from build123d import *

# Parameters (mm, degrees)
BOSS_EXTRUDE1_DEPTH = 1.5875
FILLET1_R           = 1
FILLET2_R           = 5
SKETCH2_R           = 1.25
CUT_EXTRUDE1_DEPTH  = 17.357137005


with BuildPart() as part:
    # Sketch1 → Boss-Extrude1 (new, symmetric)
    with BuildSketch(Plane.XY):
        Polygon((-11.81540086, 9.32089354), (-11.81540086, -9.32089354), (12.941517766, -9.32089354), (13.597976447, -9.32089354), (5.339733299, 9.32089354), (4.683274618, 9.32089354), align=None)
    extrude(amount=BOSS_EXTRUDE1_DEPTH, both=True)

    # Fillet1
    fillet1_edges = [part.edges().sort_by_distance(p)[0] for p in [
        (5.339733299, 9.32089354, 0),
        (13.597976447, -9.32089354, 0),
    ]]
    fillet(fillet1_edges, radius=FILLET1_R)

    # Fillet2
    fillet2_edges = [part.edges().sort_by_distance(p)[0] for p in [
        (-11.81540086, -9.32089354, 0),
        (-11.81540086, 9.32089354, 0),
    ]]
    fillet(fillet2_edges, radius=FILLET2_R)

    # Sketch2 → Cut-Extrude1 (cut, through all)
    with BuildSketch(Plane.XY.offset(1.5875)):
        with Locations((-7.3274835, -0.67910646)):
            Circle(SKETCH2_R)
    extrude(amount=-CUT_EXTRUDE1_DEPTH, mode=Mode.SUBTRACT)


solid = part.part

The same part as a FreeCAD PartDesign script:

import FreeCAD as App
import Part
import Sketcher


def edges_at(feature, points):
    """Names of the edges that pass closest to the given points."""
    edges = feature.Shape.Edges
    near = lambda p: min(range(len(edges)), key=lambda i: edges[i].distToShape(Part.Vertex(*p))[0])
    return sorted({f"Edge{near(p) + 1}" for p in points})

doc = App.newDocument("Part")
body = doc.addObject("PartDesign::Body", "Body")

sketch1 = body.newObject("Sketcher::SketchObject", "Sketch")
sketch1.AttachmentSupport = (doc.getObject("XY_Plane"), [""])
sketch1.MapMode = "FlatFace"
sketch1.addGeometry(Part.LineSegment(App.Vector(-12, 9, 0), App.Vector(-12, -9, 0)), False)
sketch1.addGeometry(Part.LineSegment(App.Vector(-12, -9, 0), App.Vector(14, -9, 0)), False)
sketch1.addGeometry(Part.LineSegment(App.Vector(14, -9, 0), App.Vector(5, 9, 0)), False)
sketch1.addGeometry(Part.LineSegment(App.Vector(5, 9, 0), App.Vector(-12, 9, 0)), False)
sketch1.addConstraint(Sketcher.Constraint("Coincident", 0, 2, 1, 1))
sketch1.addConstraint(Sketcher.Constraint("Coincident", 1, 2, 2, 1))
sketch1.addConstraint(Sketcher.Constraint("Coincident", 2, 2, 3, 1))
sketch1.addConstraint(Sketcher.Constraint("Coincident", 3, 2, 0, 1))
sketch1.addConstraint(Sketcher.Constraint("Vertical", 0))
sketch1.addConstraint(Sketcher.Constraint("Horizontal", 1))
sketch1.addConstraint(Sketcher.Constraint("Horizontal", 3))
sketch1.addConstraint(Sketcher.Constraint("DistanceX", 0, 2, -1, 1, 11.815401))
sketch1.addConstraint(Sketcher.Constraint("DistanceX", 1, 1, 1, 2, 25.413377))
sketch1.addConstraint(Sketcher.Constraint("DistanceX", 3, 2, 3, 1, 17.155134))
sketch1.addConstraint(Sketcher.Constraint("DistanceY", 0, 2, 0, 1, 18.641787))
sketch1.addConstraint(Sketcher.Constraint("DistanceY", 0, 2, -1, 1, 9.320894))
pad1 = body.newObject("PartDesign::Pad", "Pad")
pad1.Profile = sketch1
pad1.Length = 3.175
pad1.Midplane = True
doc.recompute()

fillet = body.newObject("PartDesign::Fillet", "Fillet")
fillet.Base = (pad1, edges_at(pad1, [(5.34, 9.321, 0), (13.598, -9.321, 0)]))
fillet.Radius = 1
doc.recompute()

fillet2 = body.newObject("PartDesign::Fillet", "Fillet001")
fillet2.Base = (fillet, edges_at(fillet, [(-11.815, -9.321, 0), (-11.815, 9.321, 0)]))
fillet2.Radius = 5

sketch2 = body.newObject("Sketcher::SketchObject", "Sketch001")
sketch2.AttachmentSupport = (doc.getObject("XY_Plane"), [""])
sketch2.MapMode = "FlatFace"
sketch2.AttachmentOffset = App.Placement(App.Vector(0, 0, 1.5875), App.Rotation())
sketch2.addGeometry(Part.Circle(App.Vector(-7.3, -0.7, 0), App.Vector(0, 0, 1), 1.2), False)
sketch2.addConstraint(Sketcher.Constraint("Diameter", 0, 2.5))
sketch2.addConstraint(Sketcher.Constraint("DistanceX", 0, 3, -1, 1, 7.327483))
sketch2.addConstraint(Sketcher.Constraint("DistanceY", 0, 3, -1, 1, 0.679106))
pocket1 = body.newObject("PartDesign::Pocket", "Pocket")
pocket1.Profile = sketch2
pocket1.Type = "ThroughAll"

doc.recompute()
